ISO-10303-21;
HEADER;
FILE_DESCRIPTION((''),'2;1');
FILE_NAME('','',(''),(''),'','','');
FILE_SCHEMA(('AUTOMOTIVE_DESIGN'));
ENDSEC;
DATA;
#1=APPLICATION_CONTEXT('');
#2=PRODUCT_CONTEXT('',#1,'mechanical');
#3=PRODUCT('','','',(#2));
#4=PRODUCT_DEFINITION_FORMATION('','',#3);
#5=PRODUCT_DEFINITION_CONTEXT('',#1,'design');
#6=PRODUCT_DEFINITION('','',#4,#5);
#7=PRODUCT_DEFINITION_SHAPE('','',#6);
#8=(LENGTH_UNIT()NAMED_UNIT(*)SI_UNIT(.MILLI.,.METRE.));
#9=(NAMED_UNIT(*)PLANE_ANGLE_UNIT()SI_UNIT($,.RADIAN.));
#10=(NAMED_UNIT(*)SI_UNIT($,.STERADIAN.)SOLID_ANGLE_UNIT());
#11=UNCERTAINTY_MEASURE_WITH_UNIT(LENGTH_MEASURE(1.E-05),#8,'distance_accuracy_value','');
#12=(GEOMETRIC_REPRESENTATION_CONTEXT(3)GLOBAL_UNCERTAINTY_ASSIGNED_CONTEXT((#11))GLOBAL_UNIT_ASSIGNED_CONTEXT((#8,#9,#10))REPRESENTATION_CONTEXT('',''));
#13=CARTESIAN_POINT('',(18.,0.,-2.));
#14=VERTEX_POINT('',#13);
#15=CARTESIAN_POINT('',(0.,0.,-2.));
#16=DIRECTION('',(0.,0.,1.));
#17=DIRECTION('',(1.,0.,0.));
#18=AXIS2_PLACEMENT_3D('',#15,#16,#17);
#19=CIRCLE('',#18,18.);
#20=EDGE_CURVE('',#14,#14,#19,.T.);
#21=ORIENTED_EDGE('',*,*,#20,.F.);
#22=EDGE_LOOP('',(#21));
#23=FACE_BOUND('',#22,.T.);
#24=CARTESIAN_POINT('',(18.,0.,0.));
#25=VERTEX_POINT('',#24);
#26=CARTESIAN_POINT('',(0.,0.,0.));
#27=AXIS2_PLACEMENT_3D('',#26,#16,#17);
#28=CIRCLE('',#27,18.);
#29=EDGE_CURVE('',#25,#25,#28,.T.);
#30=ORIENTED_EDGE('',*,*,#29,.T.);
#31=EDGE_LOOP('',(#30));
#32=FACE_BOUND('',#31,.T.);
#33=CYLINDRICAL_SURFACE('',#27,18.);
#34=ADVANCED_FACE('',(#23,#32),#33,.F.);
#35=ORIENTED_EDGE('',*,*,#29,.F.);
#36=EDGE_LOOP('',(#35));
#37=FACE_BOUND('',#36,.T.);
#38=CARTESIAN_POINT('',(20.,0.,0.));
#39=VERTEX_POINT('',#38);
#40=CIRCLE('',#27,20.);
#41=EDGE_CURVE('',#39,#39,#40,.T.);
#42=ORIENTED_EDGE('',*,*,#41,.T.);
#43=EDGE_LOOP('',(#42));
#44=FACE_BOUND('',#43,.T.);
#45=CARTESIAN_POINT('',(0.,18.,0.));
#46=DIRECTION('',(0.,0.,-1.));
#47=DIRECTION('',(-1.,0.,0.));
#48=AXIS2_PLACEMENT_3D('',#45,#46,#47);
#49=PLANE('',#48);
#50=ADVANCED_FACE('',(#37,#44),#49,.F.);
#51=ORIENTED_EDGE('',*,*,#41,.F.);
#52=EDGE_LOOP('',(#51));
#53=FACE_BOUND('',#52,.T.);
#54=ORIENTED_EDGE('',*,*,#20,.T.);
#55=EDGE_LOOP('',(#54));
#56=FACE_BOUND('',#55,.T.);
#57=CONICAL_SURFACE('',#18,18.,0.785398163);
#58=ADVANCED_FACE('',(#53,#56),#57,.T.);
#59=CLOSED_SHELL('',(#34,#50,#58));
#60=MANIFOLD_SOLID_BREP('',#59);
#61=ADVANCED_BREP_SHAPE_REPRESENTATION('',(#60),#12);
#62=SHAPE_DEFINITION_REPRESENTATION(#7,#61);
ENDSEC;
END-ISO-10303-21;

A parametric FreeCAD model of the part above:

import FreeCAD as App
import Part
import Sketcher

V = App.Vector

doc = App.newDocument("Part")
params = doc.addObject("Spreadsheet::Sheet", "Params")
for row, (alias, value) in enumerate([
    ("sketch1_width", "2 mm"),
    ("revolution_angle", "360 deg"),
], start=1):
    params.set(f"A{row}", alias)
    params.set(f"B{row}", "=" + value)
    params.setAlias(f"B{row}", alias)

body = doc.addObject("PartDesign::Body", "Body")

# Sketch on YZ plane
sketch1 = body.newObject("Sketcher::SketchObject", "Sketch")
sketch1.AttachmentSupport = (doc.getObject("YZ_Plane"), [""])
sketch1.MapMode = "FlatFace"
sketch1.addGeometry(Part.LineSegment(V(20, 0, 0), V(18, 0, 0)), False)
sketch1.addGeometry(Part.LineSegment(V(18, 0, 0), V(18, -2, 0)), False)
sketch1.addGeometry(Part.LineSegment(V(18, -2, 0), V(20, 0, 0)), False)
sketch1.addConstraint(Sketcher.Constraint("Coincident", 0, 2, 1, 1))
sketch1.addConstraint(Sketcher.Constraint("Coincident", 1, 2, 2, 1))
sketch1.addConstraint(Sketcher.Constraint("Coincident", 2, 2, 0, 1))
sketch1.addConstraint(Sketcher.Constraint("Horizontal", 0))
sketch1.addConstraint(Sketcher.Constraint("Vertical", 1))
sketch1.addConstraint(Sketcher.Constraint("PointOnObject", 0, 2, -1))
sketch1.addConstraint(Sketcher.Constraint("Equal", 0, 1))
sketch1.addConstraint(Sketcher.Constraint("DistanceX", 0, 2, 0, 1, 2.0))
sketch1.addConstraint(Sketcher.Constraint("DistanceX", -1, 1, 0, 2, 18.0))
sketch1.setExpression("Constraints[7]", "Params.sketch1_width")
revolution = body.newObject("PartDesign::Revolution", "Revolution")
revolution.Profile = sketch1
revolution.ReferenceAxis = (sketch1, ["V_Axis"])
revolution.setExpression("Angle", "Params.revolution_angle")

doc.recompute()
